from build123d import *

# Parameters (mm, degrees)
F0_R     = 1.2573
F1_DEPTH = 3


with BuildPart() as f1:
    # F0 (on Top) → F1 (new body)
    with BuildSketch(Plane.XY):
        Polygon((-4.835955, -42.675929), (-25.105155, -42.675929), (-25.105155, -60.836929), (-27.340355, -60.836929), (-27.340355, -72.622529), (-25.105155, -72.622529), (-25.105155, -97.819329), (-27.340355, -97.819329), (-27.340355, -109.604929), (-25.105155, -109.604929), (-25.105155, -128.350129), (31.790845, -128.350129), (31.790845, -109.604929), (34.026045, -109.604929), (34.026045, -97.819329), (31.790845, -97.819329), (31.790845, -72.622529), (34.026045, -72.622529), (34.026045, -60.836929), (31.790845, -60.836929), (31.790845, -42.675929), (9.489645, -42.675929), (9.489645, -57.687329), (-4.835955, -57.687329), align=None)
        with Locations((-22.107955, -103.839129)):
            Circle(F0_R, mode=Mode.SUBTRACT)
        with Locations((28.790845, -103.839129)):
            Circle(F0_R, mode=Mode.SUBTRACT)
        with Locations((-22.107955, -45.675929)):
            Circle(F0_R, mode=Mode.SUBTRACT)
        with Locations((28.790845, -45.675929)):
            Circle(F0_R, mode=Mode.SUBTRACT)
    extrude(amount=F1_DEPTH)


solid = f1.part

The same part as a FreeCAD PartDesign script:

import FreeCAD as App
import Part
import Sketcher
from FreeCAD import Vector
Q = App.Units.Quantity

doc = App.newDocument("Part")
params = doc.addObject("Spreadsheet::Sheet", "Params")
for row, (alias, value) in enumerate([
    ("sketch1_diameter", "0.099 in"),
    ("sketch1_width", "2.24 in"),
    ("sketch1_width2", "0.798 in"),
    ("sketch1_width3", "0.088 in"),
    ("sketch1_width4", "0.878 in"),
    ("pad1_length", "3 mm"),
], start=1):
    params.set(f"A{row}", alias)
    params.set(f"B{row}", "=" + value)
    params.setAlias(f"B{row}", alias)

body = doc.addObject("PartDesign::Body", "Body")

# Sketch on XY plane
sketch1 = doc.addObject("Sketcher::SketchObject", "Sketch")
body.addObject(sketch1)
sketch1.AttachmentSupport = (doc.XY_Plane, [""])
sketch1.MapMode = "FlatFace"
sketch1.addGeometry([
    Part.LineSegment(Vector(-4.835955, -42.675929, 0), Vector(-25.105155, -42.675929, 0)),  # 0
    Part.LineSegment(Vector(-25.105155, -42.675929, 0), Vector(-25.105155, -60.836929, 0)),  # 1
    Part.LineSegment(Vector(-25.105155, -60.836929, 0), Vector(-27.340355, -60.836929, 0)),  # 2
    Part.LineSegment(Vector(-27.340355, -60.836929, 0), Vector(-27.340355, -72.622529, 0)),  # 3
    Part.LineSegment(Vector(-27.340355, -72.622529, 0), Vector(-25.105155, -72.622529, 0)),  # 4
    Part.LineSegment(Vector(-25.105155, -72.622529, 0), Vector(-25.105155, -97.819329, 0)),  # 5
    Part.LineSegment(Vector(-25.105155, -97.819329, 0), Vector(-27.340355, -97.819329, 0)),  # 6
    Part.LineSegment(Vector(-27.340355, -97.819329, 0), Vector(-27.340355, -109.604929, 0)),  # 7
    Part.LineSegment(Vector(-27.340355, -109.604929, 0), Vector(-25.105155, -109.604929, 0)),  # 8
    Part.LineSegment(Vector(-25.105155, -109.604929, 0), Vector(-25.105155, -128.350129, 0)),  # 9
    Part.LineSegment(Vector(-25.105155, -128.350129, 0), Vector(31.790845, -128.350129, 0)),  # 10
    Part.LineSegment(Vector(31.790845, -128.350129, 0), Vector(31.790845, -109.604929, 0)),  # 11
    Part.LineSegment(Vector(31.790845, -109.604929, 0), Vector(34.026045, -109.604929, 0)),  # 12
    Part.LineSegment(Vector(34.026045, -109.604929, 0), Vector(34.026045, -97.819329, 0)),  # 13
    Part.LineSegment(Vector(34.026045, -97.819329, 0), Vector(31.790845, -97.819329, 0)),  # 14
    Part.LineSegment(Vector(31.790845, -97.819329, 0), Vector(31.790845, -72.622529, 0)),  # 15
    Part.LineSegment(Vector(31.790845, -72.622529, 0), Vector(34.026045, -72.622529, 0)),  # 16
    Part.LineSegment(Vector(34.026045, -72.622529, 0), Vector(34.026045, -60.836929, 0)),  # 17
    Part.LineSegment(Vector(34.026045, -60.836929, 0), Vector(31.790845, -60.836929, 0)),  # 18
    Part.LineSegment(Vector(31.790845, -60.836929, 0), Vector(31.790845, -42.675929, 0)),  # 19
    Part.LineSegment(Vector(31.790845, -42.675929, 0), Vector(9.489645, -42.675929, 0)),  # 20
    Part.LineSegment(Vector(9.489645, -42.675929, 0), Vector(9.489645, -57.687329, 0)),  # 21
    Part.LineSegment(Vector(9.489645, -57.687329, 0), Vector(-4.835955, -57.687329, 0)),  # 22
    Part.LineSegment(Vector(-4.835955, -57.687329, 0), Vector(-4.835955, -42.675929, 0)),  # 23
    Part.Circle(Vector(-22.107955, -103.839129, 0), Vector(0, 0, 1), 1.2573),  # 24
    Part.Circle(Vector(28.790845, -103.839129, 0), Vector(0, 0, 1), 1.2573),  # 25
    Part.Circle(Vector(-22.107955, -45.675929, 0), Vector(0, 0, 1), 1.2573),  # 26
    Part.Circle(Vector(28.790845, -45.675929, 0), Vector(0, 0, 1), 1.2573),  # 27
], False)
sketch1.addConstraint([
    Sketcher.Constraint("Coincident", 0, 2, 1, 1),
    Sketcher.Constraint("Coincident", 1, 2, 2, 1),
    Sketcher.Constraint("Coincident", 2, 2, 3, 1),
    Sketcher.Constraint("Coincident", 3, 2, 4, 1),
    Sketcher.Constraint("Coincident", 4, 2, 5, 1),
    Sketcher.Constraint("Coincident", 5, 2, 6, 1),
    Sketcher.Constraint("Coincident", 6, 2, 7, 1),
    Sketcher.Constraint("Coincident", 7, 2, 8, 1),
    Sketcher.Constraint("Coincident", 8, 2, 9, 1),
    Sketcher.Constraint("Coincident", 9, 2, 10, 1),
    Sketcher.Constraint("Coincident", 10, 2, 11, 1),
    Sketcher.Constraint("Coincident", 11, 2, 12, 1),
    Sketcher.Constraint("Coincident", 12, 2, 13, 1),
    Sketcher.Constraint("Coincident", 13, 2, 14, 1),
    Sketcher.Constraint("Coincident", 14, 2, 15, 1),
    Sketcher.Constraint("Coincident", 15, 2, 16, 1),
    Sketcher.Constraint("Coincident", 16, 2, 17, 1),
    Sketcher.Constraint("Coincident", 17, 2, 18, 1),
    Sketcher.Constraint("Coincident", 18, 2, 19, 1),
    Sketcher.Constraint("Coincident", 19, 2, 20, 1),
    Sketcher.Constraint("Coincident", 20, 2, 21, 1),
    Sketcher.Constraint("Coincident", 21, 2, 22, 1),
    Sketcher.Constraint("Coincident", 22, 2, 23, 1),
    Sketcher.Constraint("Coincident", 23, 2, 0, 1),
    Sketcher.Constraint("Horizontal", 0),
    Sketcher.Constraint("Vertical", 1),
    Sketcher.Constraint("Horizontal", 2),
    Sketcher.Constraint("Vertical", 3),
    Sketcher.Constraint("Horizontal", 4),
    Sketcher.Constraint("Vertical", 5),
    Sketcher.Constraint("Horizontal", 6),
    Sketcher.Constraint("Vertical", 7),
    Sketcher.Constraint("Horizontal", 8),
    Sketcher.Constraint("Vertical", 9),
    Sketcher.Constraint("Horizontal", 10),
    Sketcher.Constraint("Vertical", 11),
    Sketcher.Constraint("Horizontal", 12),
    Sketcher.Constraint("Vertical", 13),
    Sketcher.Constraint("Horizontal", 14),
    Sketcher.Constraint("Vertical", 15),
    Sketcher.Constraint("Horizontal", 16),
    Sketcher.Constraint("Vertical", 17),
    Sketcher.Constraint("Horizontal", 18),
    Sketcher.Constraint("Vertical", 19),
    Sketcher.Constraint("Horizontal", 20),
    Sketcher.Constraint("Vertical", 21),
    Sketcher.Constraint("Horizontal", 22),
    Sketcher.Constraint("Vertical", 23),
    Sketcher.Constraint("Equal", 24, 25),
    Sketcher.Constraint("Equal", 25, 26),
    Sketcher.Constraint("Equal", 26, 27),
    Sketcher.Constraint("Horizontal", 24, 3, 25, 3),
    Sketcher.Constraint("Horizontal", 26, 3, 27, 3),
    Sketcher.Constraint("Horizontal", 8, 2, 11, 2),
    Sketcher.Constraint("Horizontal", 6, 2, 13, 2),
    Sketcher.Constraint("Horizontal", 4, 2, 15, 2),
    Sketcher.Constraint("Horizontal", 2, 2, 17, 2),
    Sketcher.Constraint("Horizontal", 0, 2, 19, 2),
    Sketcher.Constraint("Vertical", 24, 3, 26, 3),
    Sketcher.Constraint("Vertical", 25, 3, 27, 3),
    Sketcher.Constraint("Vertical", 1, 2, 4, 2),
    Sketcher.Constraint("Vertical", 3, 2, 6, 2),
    Sketcher.Constraint("Vertical", 5, 2, 8, 2),
    Sketcher.Constraint("Vertical", 11, 2, 14, 2),
    Sketcher.Constraint("Vertical", 13, 2, 16, 2),
    Sketcher.Constraint("Vertical", 15, 2, 18, 2),
    Sketcher.Constraint("Equal", 8, 12),
    Sketcher.Constraint("Equal", 3, 7),
    Sketcher.Constraint("Diameter", 24, Q("0.099 in")),
    Sketcher.Constraint("DistanceX", 10, 1, 10, 2, Q("2.24 in")),
    Sketcher.Constraint("DistanceX", 0, 2, 0, 1, Q("0.798 in")),
    Sketcher.Constraint("DistanceX", 2, 2, 2, 1, Q("0.088 in")),
    Sketcher.Constraint("DistanceX", 20, 2, 20, 1, Q("0.878 in")),
    Sketcher.Constraint("DistanceY", 1, 2, 1, 1, Q("0.715 in")),
    Sketcher.Constraint("DistanceY", 3, 2, 3, 1, Q("0.464 in")),
    Sketcher.Constraint("DistanceY", 5, 2, 5, 1, Q("0.992 in")),
    Sketcher.Constraint("DistanceY", 9, 2, 9, 1, Q("0.738 in")),
    Sketcher.Constraint("DistanceY", 21, 2, 21, 1, Q("0.591 in")),
    Sketcher.Constraint("DistanceX", 24, 3, 12, 2, Q("2.21 in")),
    Sketcher.Constraint("DistanceY", 24, 3, 0, 2, Q("2.408 in")),
    Sketcher.Constraint("DistanceX", 24, 3, 25, 3, Q("50.8988 mm")),
    Sketcher.Constraint("DistanceY", 24, 3, 26, 3, Q("58.1632 mm")),
    Sketcher.Constraint("DistanceY", 24, 3, -1, 1, Q("103.839129 mm")),
    Sketcher.Constraint("DistanceX", 24, 3, -1, 1, Q("22.107955 mm")),
])
sketch1.setExpression("Constraints[68]", "Params.sketch1_diameter")
sketch1.setExpression("Constraints[69]", "Params.sketch1_width")
sketch1.setExpression("Constraints[70]", "Params.sketch1_width2")
sketch1.setExpression("Constraints[71]", "Params.sketch1_width3")
sketch1.setExpression("Constraints[72]", "Params.sketch1_width4")
pad1 = doc.addObject("PartDesign::Pad", "Pad")
body.addObject(pad1)
pad1.Profile = sketch1
pad1.setExpression("Length", "Params.pad1_length")

doc.recompute()
